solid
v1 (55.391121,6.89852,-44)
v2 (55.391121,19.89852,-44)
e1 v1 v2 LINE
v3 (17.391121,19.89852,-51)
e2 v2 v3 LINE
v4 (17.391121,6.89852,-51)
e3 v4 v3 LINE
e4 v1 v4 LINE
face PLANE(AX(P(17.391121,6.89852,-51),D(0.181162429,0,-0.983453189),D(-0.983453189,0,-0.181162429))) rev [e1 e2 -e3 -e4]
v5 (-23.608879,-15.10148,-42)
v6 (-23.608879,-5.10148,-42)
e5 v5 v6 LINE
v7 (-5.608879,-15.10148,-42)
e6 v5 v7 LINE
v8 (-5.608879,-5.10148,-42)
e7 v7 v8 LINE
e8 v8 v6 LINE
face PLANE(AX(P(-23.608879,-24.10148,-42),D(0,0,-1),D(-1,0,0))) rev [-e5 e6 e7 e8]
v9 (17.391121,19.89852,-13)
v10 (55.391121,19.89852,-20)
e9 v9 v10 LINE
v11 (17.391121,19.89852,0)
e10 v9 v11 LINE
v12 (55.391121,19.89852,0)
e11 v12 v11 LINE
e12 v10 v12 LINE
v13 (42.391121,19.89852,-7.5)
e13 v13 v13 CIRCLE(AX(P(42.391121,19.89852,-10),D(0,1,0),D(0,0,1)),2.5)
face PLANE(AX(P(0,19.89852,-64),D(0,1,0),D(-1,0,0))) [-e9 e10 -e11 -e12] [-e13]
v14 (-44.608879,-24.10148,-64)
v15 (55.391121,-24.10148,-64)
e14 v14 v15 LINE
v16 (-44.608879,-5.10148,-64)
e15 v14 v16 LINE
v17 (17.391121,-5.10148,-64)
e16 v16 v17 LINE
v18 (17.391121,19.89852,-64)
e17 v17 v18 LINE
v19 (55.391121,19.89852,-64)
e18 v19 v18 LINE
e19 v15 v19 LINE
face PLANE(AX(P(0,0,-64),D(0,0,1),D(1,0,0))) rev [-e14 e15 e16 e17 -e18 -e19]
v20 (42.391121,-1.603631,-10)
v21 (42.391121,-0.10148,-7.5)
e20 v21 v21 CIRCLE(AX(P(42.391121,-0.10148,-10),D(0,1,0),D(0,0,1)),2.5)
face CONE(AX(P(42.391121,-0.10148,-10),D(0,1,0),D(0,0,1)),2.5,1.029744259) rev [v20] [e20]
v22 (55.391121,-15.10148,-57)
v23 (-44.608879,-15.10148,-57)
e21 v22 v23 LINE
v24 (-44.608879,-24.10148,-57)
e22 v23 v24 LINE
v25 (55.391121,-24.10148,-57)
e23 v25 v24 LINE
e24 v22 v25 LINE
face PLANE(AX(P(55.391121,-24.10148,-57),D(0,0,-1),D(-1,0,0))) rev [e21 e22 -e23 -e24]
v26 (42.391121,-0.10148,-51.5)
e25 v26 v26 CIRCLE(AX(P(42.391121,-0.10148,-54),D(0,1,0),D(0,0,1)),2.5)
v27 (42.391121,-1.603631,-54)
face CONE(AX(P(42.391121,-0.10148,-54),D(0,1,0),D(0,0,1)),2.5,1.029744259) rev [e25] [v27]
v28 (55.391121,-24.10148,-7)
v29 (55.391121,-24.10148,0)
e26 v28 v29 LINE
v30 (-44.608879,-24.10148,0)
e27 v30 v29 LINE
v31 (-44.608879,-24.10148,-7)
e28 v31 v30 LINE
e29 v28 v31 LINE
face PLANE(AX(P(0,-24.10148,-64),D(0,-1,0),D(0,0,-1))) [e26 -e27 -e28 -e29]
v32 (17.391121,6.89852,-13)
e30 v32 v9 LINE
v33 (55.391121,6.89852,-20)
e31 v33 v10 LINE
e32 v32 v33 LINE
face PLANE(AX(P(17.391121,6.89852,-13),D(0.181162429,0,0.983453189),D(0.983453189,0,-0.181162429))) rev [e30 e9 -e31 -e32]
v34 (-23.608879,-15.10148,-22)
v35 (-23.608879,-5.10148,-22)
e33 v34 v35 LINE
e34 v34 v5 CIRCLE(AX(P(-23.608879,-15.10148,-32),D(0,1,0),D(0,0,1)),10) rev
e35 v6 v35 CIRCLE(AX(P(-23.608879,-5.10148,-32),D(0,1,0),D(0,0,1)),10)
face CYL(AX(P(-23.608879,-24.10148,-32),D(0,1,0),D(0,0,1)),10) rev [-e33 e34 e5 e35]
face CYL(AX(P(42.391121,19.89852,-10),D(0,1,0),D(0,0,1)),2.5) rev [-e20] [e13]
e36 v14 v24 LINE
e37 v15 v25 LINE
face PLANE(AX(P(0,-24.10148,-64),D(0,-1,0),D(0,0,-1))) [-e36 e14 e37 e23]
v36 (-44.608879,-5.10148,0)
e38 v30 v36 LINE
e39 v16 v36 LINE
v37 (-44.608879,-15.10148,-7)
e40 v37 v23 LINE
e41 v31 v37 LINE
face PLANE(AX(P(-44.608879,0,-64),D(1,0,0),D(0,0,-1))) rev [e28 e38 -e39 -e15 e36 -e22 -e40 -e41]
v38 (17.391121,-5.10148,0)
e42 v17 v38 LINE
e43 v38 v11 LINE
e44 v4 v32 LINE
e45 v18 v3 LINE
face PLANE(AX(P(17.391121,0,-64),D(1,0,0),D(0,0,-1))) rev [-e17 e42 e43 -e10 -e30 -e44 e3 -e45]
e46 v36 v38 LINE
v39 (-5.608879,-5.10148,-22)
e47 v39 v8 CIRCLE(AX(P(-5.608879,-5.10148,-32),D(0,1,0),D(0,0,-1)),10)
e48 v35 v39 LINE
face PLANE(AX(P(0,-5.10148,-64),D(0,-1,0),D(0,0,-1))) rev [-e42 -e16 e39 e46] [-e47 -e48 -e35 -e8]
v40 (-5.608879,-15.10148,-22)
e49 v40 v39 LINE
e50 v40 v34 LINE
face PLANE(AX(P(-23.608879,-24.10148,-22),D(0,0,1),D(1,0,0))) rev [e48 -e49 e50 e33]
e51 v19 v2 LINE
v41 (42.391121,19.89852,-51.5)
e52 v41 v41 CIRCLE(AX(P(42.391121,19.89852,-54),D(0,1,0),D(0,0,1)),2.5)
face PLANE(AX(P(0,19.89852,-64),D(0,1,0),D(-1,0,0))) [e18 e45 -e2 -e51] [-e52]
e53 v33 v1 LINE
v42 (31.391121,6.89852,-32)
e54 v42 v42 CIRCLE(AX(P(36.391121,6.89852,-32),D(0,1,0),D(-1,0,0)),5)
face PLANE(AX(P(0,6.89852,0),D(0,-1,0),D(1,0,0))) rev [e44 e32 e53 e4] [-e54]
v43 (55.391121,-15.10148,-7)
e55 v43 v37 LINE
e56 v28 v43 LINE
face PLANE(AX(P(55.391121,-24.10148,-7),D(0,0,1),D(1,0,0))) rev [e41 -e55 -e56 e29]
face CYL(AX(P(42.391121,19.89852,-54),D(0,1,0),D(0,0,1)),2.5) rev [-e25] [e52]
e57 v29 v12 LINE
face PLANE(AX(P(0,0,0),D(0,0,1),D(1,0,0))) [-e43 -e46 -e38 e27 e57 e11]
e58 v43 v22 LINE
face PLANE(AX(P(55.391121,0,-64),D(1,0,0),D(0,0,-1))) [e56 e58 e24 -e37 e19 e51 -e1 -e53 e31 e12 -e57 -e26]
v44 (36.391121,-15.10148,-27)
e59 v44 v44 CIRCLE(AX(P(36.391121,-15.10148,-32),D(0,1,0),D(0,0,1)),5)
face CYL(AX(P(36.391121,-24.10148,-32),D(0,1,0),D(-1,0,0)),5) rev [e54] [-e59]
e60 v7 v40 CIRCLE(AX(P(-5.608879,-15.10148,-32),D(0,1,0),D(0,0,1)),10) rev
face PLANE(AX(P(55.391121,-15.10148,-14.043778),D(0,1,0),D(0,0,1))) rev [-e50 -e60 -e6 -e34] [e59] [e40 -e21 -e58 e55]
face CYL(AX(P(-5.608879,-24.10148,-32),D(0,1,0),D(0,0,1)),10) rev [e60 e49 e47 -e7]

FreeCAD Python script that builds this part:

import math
import FreeCAD as App
import Part
import Sketcher
from FreeCAD import Vector


def add_polygon(sketch, points):
    """Adds a closed chain of lines whose ends are joined by coincident constraints."""
    first, n = sketch.GeometryCount, len(points)
    for a, b in zip(points, points[1:] + points[:1]):
        sketch.addGeometry(Part.LineSegment(App.Vector(*a, 0), App.Vector(*b, 0)), False)
    for i in range(n):
        sketch.addConstraint(Sketcher.Constraint("Coincident", first + i, 2, first + (i + 1) % n, 1))

doc = App.newDocument("Part")
params = doc.addObject("Spreadsheet::Sheet", "Params")
for row, (alias, value) in enumerate([
    ("sketch1_width", "100 mm"),
    ("sketch1_width2", "38 mm"),
    ("sketch1_height", "19 mm"),
    ("sketch1_height2", "44 mm"),
    ("pad1_length", "64 mm"),
    ("sketch2_height", "24 mm"),
    ("sketch2_height2", "38 mm"),
    ("pocket1_length", "13 mm"),
    ("sketch3_radius", "10 mm"),
    ("sketch3_width", "18 mm"),
    ("sketch4_width", "9 mm"),
    ("sketch4_height", "50 mm"),
    ("sketch5_diameter", "5 mm"),
    ("hole_diameter", "5 mm"),
    ("hole_depth", "20 mm"),
    ("sketch6_diameter", "10 mm"),
], start=1):
    params.set(f"A{row}", alias)
    params.set(f"B{row}", "=" + value)
    params.setAlias(f"B{row}", alias)

body = doc.addObject("PartDesign::Body", "Body")

sketch1 = doc.addObject("Sketcher::SketchObject", "Sketch")
body.addObject(sketch1)
sketch1.AttachmentSupport = (doc.XY_Plane, [""])
sketch1.MapMode = "FlatFace"
add_polygon(sketch1, [(-44.608879, -5.10148), (-44.608879, -24.10148), (55.391121, -24.10148), (55.391121, 19.89852), (17.391121, 19.89852), (17.391121, -5.10148)])
sketch1.addConstraint([
    Sketcher.Constraint("Vertical", 0),
    Sketcher.Constraint("Horizontal", 1),
    Sketcher.Constraint("Vertical", 2),
    Sketcher.Constraint("Horizontal", 3),
    Sketcher.Constraint("Vertical", 4),
    Sketcher.Constraint("Horizontal", 5),
    Sketcher.Constraint("DistanceX", 1, 1, 1, 2, 100.0),
    Sketcher.Constraint("DistanceX", 3, 2, 3, 1, 38.0),
    Sketcher.Constraint("DistanceY", 0, 2, 0, 1, 19.0),
    Sketcher.Constraint("DistanceY", 2, 1, 2, 2, 44.0),
    Sketcher.Constraint("DistanceX", 0, 2, -1, 1, 44.608879),
    Sketcher.Constraint("DistanceY", 0, 2, -1, 1, 24.10148),
])
sketch1.setExpression("Constraints[12]", "Params.sketch1_width")
sketch1.setExpression("Constraints[13]", "Params.sketch1_width2")
sketch1.setExpression("Constraints[14]", "Params.sketch1_height")
sketch1.setExpression("Constraints[15]", "Params.sketch1_height2")
pad1 = doc.addObject("PartDesign::Pad", "Pad")
body.addObject(pad1)
pad1.Profile = sketch1
pad1.setExpression("Length", "Params.pad1_length")
pad1.Reversed = True

sketch2 = doc.addObject("Sketcher::SketchObject", "Sketch001")
body.addObject(sketch2)
sketch2.AttachmentSupport = (doc.XZ_Plane, [""])
sketch2.MapMode = "FlatFace"
sketch2.AttachmentOffset = App.Placement(Vector(0, 0, -19.89852), App.Rotation())
add_polygon(sketch2, [(55.391121, -20), (55.391121, -44), (17.391121, -51), (17.391121, -13)])
sketch2.addConstraint([
    Sketcher.Constraint("Vertical", 0),
    Sketcher.Constraint("Vertical", 2),
    Sketcher.Constraint("Equal", 1, 3),
    Sketcher.Constraint("DistanceY", 0, 2, 0, 1, 24.0),
    Sketcher.Constraint("DistanceY", 2, 1, 2, 2, 38.0),
    Sketcher.Constraint("DistanceY", 0, 2, -1, 1, 44.0),
    Sketcher.Constraint("DistanceX", 1, 2, 0, 2, 38.0),
    Sketcher.Constraint("DistanceX", -1, 1, 0, 2, 55.391121),
])
sketch2.setExpression("Constraints[7]", "Params.sketch2_height")
sketch2.setExpression("Constraints[8]", "Params.sketch2_height2")
pocket1 = doc.addObject("PartDesign::Pocket", "Pocket")
body.addObject(pocket1)
pocket1.Profile = sketch2
pocket1.setExpression("Length", "Params.pocket1_length")
pocket1.Reversed = True

sketch3 = doc.addObject("Sketcher::SketchObject", "Sketch002")
body.addObject(sketch3)
sketch3.AttachmentSupport = (doc.XZ_Plane, [""])
sketch3.MapMode = "FlatFace"
sketch3.AttachmentOffset = App.Placement(Vector(0, 0, 5.10148), App.Rotation())
sketch3.addGeometry([
    Part.LineSegment(Vector(-5.608879, -42, 0), Vector(-23.608879, -42, 0)),
    Part.ArcOfCircle(Part.Circle(Vector(-23.608879, -32, 0), Vector(0, 0, 1), 10), math.radians(90), math.radians(270)),
    Part.LineSegment(Vector(-23.608879, -22, 0), Vector(-5.608879, -22, 0)),
    Part.ArcOfCircle(Part.Circle(Vector(-5.608879, -32, 0), Vector(0, 0, 1), 10), math.radians(-90), math.radians(90)),
], False)
sketch3.addConstraint([
    Sketcher.Constraint("Tangent", 0, 2, 1, 2),
    Sketcher.Constraint("Tangent", 1, 1, 2, 1),
    Sketcher.Constraint("Tangent", 2, 2, 3, 2),
    Sketcher.Constraint("Tangent", 3, 1, 0, 1),
    Sketcher.Constraint("Horizontal", 0),
    Sketcher.Constraint("Horizontal", 2),
    Sketcher.Constraint("Radius", 1, 10.0),
    Sketcher.Constraint("DistanceX", 0, 2, 0, 1, 18.0),
    Sketcher.Constraint("DistanceY", 1, 3, -1, 1, 32.0),
    Sketcher.Constraint("DistanceX", 1, 3, -1, 1, 23.608879),
])
sketch3.setExpression("Constraints[6]", "Params.sketch3_radius")
sketch3.setExpression("Constraints[7]", "Params.sketch3_width")
pocket2 = doc.addObject("PartDesign::Pocket", "Pocket001")
body.addObject(pocket2)
pocket2.Profile = sketch3
pocket2.Type = "ThroughAll"
pocket2.Reversed = True

sketch4 = doc.addObject("Sketcher::SketchObject", "Sketch003")
body.addObject(sketch4)
sketch4.AttachmentSupport = (doc.YZ_Plane, [""])
sketch4.MapMode = "FlatFace"
sketch4.AttachmentOffset = App.Placement(Vector(0, 0, -44.608879), App.Rotation())
add_polygon(sketch4, [(-15.10148, -7), (-15.10148, -57), (-24.10148, -57), (-24.10148, -7)])
sketch4.addConstraint([
    Sketcher.Constraint("Vertical", 0),
    Sketcher.Constraint("Horizontal", 1),
    Sketcher.Constraint("Vertical", 2),
    Sketcher.Constraint("Horizontal", 3),
    Sketcher.Constraint("DistanceX", 1, 2, 1, 1, 9.0),
    Sketcher.Constraint("DistanceY", 0, 2, 0, 1, 50.0),
    Sketcher.Constraint("DistanceY", 0, 2, -1, 1, 57.0),
    Sketcher.Constraint("DistanceX", 0, 2, -1, 1, 15.10148),
])
sketch4.setExpression("Constraints[8]", "Params.sketch4_width")
sketch4.setExpression("Constraints[9]", "Params.sketch4_height")
pocket3 = doc.addObject("PartDesign::Pocket", "Pocket002")
body.addObject(pocket3)
pocket3.Profile = sketch4
pocket3.Type = "ThroughAll"
pocket3.Reversed = True

sketch5 = doc.addObject("Sketcher::SketchObject", "Sketch004")
body.addObject(sketch5)
sketch5.AttachmentSupport = (doc.XZ_Plane, [""])
sketch5.MapMode = "FlatFace"
sketch5.AttachmentOffset = App.Placement(Vector(0, 0, -19.89852), App.Rotation())
sketch5.addGeometry([
    Part.Circle(Vector(42.391121, -54, 0), Vector(0, 0, 1), 2.5),
    Part.Circle(Vector(42.391121, -10, 0), Vector(0, 0, 1), 2.5),
], False)
sketch5.addConstraint([
    Sketcher.Constraint("Equal", 0, 1),
    Sketcher.Constraint("Vertical", 0, 3, 1, 3),
    Sketcher.Constraint("Diameter", 0, 5.0),
    Sketcher.Constraint("DistanceY", 0, 3, -1, 1, 54.0),
    Sketcher.Constraint("DistanceY", 1, 3, -1, 1, 10.0),
    Sketcher.Constraint("DistanceX", -1, 1, 0, 3, 42.391121),
])
sketch5.setExpression("Constraints[2]", "Params.sketch5_diameter")
doc.recompute()
hole = doc.addObject("PartDesign::Hole", "Hole")
body.addObject(hole)
hole.Profile = sketch5
hole.ThreadType = "None"
hole.setExpression("Diameter", "Params.hole_diameter")
hole.DepthType = "Dimension"
hole.setExpression("Depth", "Params.hole_depth")
hole.DrillPoint = "Angled"
hole.DrillPointAngle = 118
hole.Reversed = True

sketch6 = doc.addObject("Sketcher::SketchObject", "Sketch005")
body.addObject(sketch6)
sketch6.AttachmentSupport = (doc.XZ_Plane, [""])
sketch6.MapMode = "FlatFace"
sketch6.AttachmentOffset = App.Placement(Vector(0, 0, -6.89852), App.Rotation())
sketch6.addGeometry(Part.Circle(Vector(36.391121, -32, 0), Vector(0, 0, 1), 5), False)
sketch6.addConstraint([
    Sketcher.Constraint("Diameter", 0, 10.0),
    Sketcher.Constraint("DistanceY", 0, 3, -1, 1, 32.0),
    Sketcher.Constraint("DistanceX", -1, 1, 0, 3, 36.391121),
])
sketch6.setExpression("Constraints[0]", "Params.sketch6_diameter")
pocket4 = doc.addObject("PartDesign::Pocket", "Pocket003")
body.addObject(pocket4)
pocket4.Profile = sketch6
pocket4.Type = "ThroughAll"
pocket4.Reversed = True

doc.recompute()
